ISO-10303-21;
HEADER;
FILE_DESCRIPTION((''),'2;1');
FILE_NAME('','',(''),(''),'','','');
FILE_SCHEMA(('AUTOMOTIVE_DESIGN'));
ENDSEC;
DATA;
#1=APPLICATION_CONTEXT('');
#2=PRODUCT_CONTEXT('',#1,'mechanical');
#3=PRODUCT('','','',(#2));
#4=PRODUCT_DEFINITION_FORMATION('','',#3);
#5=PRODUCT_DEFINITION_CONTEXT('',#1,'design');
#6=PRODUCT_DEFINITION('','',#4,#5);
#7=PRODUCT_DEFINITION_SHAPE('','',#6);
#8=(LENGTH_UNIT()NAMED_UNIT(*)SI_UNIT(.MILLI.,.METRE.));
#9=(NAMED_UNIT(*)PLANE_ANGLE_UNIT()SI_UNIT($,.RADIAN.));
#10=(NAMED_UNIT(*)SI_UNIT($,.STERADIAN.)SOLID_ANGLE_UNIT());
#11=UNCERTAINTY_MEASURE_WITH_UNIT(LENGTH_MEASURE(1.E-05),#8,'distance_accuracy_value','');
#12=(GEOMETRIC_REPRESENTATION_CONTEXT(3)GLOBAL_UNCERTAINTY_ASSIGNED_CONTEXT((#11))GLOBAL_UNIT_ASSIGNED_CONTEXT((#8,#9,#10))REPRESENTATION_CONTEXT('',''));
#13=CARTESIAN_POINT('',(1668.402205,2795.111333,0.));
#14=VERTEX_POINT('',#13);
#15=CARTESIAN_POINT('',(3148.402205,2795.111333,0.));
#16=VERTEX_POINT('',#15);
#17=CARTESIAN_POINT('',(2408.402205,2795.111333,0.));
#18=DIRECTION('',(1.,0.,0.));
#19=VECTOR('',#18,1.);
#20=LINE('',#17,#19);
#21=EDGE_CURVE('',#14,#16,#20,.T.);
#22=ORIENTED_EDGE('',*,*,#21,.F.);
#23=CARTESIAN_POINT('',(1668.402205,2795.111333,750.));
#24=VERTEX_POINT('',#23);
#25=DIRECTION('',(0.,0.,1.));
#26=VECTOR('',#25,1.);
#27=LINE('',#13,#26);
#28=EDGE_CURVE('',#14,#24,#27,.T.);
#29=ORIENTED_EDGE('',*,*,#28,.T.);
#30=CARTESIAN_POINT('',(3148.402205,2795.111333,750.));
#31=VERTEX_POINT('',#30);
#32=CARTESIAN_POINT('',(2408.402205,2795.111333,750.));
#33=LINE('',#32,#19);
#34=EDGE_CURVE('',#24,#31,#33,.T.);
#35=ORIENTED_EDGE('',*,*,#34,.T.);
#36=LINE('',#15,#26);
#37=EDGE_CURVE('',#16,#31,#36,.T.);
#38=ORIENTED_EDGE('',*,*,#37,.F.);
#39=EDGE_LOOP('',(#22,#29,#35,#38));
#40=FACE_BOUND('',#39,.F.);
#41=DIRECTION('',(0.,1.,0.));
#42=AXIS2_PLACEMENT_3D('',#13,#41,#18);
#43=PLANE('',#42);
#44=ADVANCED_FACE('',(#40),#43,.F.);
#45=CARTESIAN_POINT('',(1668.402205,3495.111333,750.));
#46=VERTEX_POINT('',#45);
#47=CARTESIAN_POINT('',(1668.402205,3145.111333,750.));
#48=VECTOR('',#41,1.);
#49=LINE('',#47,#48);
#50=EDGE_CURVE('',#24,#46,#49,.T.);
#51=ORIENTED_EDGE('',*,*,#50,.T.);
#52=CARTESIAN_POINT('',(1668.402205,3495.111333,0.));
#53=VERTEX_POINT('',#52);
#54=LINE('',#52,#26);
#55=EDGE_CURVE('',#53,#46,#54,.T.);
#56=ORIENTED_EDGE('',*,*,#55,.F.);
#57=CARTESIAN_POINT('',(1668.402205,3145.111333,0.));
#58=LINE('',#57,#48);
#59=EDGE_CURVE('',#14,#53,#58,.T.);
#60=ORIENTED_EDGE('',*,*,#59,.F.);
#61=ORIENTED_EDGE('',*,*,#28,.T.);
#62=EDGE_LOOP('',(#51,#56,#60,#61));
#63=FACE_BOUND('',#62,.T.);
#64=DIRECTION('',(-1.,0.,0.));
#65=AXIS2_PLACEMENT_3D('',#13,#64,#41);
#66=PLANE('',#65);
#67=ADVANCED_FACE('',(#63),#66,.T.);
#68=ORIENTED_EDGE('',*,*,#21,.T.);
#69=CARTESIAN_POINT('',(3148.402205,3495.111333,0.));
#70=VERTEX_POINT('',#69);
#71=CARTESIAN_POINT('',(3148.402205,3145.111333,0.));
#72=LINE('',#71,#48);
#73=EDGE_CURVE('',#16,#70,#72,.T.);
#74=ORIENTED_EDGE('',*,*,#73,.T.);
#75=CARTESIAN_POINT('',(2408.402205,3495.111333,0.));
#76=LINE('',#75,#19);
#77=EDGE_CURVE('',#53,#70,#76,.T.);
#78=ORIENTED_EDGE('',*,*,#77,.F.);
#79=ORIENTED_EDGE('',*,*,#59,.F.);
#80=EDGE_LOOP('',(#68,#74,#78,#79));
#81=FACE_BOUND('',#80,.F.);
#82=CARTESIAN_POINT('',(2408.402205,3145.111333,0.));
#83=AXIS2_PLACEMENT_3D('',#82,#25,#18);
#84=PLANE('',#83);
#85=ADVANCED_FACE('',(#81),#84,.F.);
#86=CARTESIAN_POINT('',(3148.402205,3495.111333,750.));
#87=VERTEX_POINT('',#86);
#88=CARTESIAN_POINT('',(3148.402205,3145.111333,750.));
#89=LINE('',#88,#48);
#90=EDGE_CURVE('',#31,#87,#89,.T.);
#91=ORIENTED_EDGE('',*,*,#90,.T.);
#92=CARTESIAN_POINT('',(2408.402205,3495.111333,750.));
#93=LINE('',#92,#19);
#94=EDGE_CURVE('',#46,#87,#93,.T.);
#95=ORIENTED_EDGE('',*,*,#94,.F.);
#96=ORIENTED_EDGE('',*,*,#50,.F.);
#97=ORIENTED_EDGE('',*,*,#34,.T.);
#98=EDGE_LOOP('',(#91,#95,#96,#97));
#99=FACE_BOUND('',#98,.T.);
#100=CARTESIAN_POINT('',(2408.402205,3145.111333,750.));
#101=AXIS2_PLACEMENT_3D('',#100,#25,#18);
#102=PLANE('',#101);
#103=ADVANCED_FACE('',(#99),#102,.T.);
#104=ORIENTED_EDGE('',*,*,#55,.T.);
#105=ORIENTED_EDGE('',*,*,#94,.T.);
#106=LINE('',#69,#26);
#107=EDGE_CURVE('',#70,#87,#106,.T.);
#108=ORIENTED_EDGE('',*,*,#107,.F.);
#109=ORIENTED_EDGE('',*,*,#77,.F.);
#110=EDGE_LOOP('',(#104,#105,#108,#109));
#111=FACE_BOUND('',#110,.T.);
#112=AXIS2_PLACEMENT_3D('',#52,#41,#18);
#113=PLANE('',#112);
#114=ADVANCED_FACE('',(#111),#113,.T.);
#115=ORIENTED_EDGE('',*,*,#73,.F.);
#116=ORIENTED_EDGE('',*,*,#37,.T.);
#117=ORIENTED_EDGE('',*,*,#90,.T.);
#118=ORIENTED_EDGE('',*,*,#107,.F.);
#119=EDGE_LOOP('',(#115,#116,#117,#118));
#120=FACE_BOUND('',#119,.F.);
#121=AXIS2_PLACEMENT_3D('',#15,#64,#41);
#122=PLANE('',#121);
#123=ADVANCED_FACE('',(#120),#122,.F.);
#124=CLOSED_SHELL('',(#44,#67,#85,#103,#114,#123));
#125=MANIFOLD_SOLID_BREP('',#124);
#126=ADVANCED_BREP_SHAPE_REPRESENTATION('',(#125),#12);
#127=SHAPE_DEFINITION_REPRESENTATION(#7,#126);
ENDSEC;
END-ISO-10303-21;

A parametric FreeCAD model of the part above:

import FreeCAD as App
import Part
import Sketcher
from FreeCAD import Vector
Q = App.Units.Quantity

doc = App.newDocument("Part")
body = doc.addObject("PartDesign::Body", "Body")

# Sketch on XY plane
sketch1 = doc.addObject("Sketcher::SketchObject", "Sketch")
body.addObject(sketch1)
sketch1.AttachmentSupport = (doc.XY_Plane, [""])
sketch1.MapMode = "FlatFace"
sketch1.addGeometry([
    Part.LineSegment(Vector(1668, 3495, 0), Vector(1668, 2795, 0)),
    Part.LineSegment(Vector(1668, 2795, 0), Vector(3148, 2795, 0)),
    Part.LineSegment(Vector(3148, 2795, 0), Vector(3148, 3495, 0)),
    Part.LineSegment(Vector(3148, 3495, 0), Vector(1668, 3495, 0)),
], False)
sketch1.addConstraint([
    Sketcher.Constraint("Coincident", 0, 2, 1, 1),
    Sketcher.Constraint("Coincident", 1, 2, 2, 1),
    Sketcher.Constraint("Coincident", 2, 2, 3, 1),
    Sketcher.Constraint("Coincident", 3, 2, 0, 1),
    Sketcher.Constraint("Vertical", 0),
    Sketcher.Constraint("Horizontal", 1),
    Sketcher.Constraint("Vertical", 2),
    Sketcher.Constraint("Horizontal", 3),
    Sketcher.Constraint("DistanceX", 1, 1, 1, 2, Q("1480 mm")),
    Sketcher.Constraint("DistanceY", 0, 2, 0, 1, Q("700 mm")),
    Sketcher.Constraint("DistanceX", -1, 1, 0, 2, Q("1668.402205 mm")),
    Sketcher.Constraint("DistanceY", -1, 1, 0, 2, Q("2795.111333 mm")),
])
pad1 = doc.addObject("PartDesign::Pad", "Pad")
body.addObject(pad1)
pad1.Profile = sketch1
pad1.Length = 750

doc.recompute()
